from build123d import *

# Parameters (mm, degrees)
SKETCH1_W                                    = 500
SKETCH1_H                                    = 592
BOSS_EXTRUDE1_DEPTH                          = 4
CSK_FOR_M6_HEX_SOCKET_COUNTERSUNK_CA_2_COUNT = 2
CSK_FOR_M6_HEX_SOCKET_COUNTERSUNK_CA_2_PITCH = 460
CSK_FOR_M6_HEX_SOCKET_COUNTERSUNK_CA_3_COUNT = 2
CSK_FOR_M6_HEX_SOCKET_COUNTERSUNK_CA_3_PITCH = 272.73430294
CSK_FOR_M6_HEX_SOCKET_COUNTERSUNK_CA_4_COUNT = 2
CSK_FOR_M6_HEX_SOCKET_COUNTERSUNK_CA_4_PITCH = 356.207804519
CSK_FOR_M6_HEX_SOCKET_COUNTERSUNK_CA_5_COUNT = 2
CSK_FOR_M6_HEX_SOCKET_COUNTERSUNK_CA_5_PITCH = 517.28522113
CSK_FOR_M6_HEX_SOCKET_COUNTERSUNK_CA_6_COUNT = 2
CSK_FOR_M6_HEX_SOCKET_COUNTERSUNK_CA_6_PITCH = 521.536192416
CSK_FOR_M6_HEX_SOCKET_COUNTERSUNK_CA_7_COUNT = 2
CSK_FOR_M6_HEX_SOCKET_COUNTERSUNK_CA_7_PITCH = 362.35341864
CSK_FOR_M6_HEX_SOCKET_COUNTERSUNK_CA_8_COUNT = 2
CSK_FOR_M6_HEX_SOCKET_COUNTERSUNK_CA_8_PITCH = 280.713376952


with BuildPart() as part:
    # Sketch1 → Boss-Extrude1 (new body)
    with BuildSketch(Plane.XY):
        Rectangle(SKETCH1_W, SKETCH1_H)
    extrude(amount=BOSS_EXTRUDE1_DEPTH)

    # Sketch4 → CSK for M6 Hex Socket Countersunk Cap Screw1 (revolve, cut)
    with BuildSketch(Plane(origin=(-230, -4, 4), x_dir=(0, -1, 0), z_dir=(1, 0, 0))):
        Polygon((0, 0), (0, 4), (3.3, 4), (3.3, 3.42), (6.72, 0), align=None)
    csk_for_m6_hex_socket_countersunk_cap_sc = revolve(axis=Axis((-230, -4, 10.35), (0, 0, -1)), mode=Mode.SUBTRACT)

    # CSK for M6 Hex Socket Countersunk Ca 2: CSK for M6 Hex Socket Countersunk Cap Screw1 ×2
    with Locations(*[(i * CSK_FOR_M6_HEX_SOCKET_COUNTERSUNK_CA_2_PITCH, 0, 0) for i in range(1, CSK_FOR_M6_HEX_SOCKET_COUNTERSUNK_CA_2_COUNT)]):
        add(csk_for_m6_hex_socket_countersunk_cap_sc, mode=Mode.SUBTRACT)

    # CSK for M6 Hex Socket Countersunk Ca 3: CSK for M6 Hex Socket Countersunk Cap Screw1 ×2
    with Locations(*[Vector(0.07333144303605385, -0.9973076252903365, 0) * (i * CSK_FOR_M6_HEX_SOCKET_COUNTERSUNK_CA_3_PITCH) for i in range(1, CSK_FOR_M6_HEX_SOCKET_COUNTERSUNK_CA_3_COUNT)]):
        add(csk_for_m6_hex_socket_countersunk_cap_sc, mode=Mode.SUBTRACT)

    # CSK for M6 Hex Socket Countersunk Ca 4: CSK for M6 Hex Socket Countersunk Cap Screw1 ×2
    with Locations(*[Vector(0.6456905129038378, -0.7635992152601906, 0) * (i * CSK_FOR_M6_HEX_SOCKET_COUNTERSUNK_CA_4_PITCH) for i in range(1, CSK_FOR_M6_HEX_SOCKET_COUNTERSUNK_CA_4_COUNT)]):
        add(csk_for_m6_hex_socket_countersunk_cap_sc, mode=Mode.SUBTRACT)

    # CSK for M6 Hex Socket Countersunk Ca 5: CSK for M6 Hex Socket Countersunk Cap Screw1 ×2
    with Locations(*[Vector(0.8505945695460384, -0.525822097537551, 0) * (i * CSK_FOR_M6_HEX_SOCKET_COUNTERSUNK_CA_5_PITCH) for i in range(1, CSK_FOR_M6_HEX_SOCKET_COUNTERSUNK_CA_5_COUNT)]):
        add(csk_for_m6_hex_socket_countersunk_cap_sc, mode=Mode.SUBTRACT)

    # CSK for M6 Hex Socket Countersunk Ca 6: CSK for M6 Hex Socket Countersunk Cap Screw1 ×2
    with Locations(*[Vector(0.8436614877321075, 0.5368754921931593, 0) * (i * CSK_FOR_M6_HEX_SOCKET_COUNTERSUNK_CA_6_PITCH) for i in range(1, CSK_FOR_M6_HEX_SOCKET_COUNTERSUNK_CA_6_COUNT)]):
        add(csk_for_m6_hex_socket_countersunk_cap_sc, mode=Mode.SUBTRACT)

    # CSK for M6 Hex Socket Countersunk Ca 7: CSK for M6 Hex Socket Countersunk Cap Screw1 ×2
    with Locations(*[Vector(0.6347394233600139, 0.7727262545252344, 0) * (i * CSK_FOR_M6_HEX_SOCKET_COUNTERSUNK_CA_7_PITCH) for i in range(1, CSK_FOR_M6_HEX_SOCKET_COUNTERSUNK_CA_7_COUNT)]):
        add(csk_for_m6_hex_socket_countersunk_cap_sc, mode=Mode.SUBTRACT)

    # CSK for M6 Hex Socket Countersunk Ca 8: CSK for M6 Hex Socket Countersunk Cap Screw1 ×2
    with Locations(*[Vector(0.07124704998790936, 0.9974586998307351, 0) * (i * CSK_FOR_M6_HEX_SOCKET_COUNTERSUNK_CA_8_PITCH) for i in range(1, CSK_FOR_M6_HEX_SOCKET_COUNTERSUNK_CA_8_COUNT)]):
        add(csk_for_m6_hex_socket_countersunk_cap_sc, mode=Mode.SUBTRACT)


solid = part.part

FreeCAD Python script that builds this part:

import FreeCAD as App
import Part
import Sketcher
from FreeCAD import Vector
Q = App.Units.Quantity

doc = App.newDocument("Part")
body = doc.addObject("PartDesign::Body", "Body")

sketch1 = doc.addObject("Sketcher::SketchObject", "Sketch")
body.addObject(sketch1)
sketch1.AttachmentSupport = (doc.XY_Plane, [""])
sketch1.MapMode = "FlatFace"
sketch1.addGeometry([
    Part.LineSegment(Vector(-250, 296, 0), Vector(-250, -296, 0)),
    Part.LineSegment(Vector(-250, -296, 0), Vector(250, -296, 0)),
    Part.LineSegment(Vector(250, -296, 0), Vector(250, 296, 0)),
    Part.LineSegment(Vector(250, 296, 0), Vector(-250, 296, 0)),
], False)
sketch1.addConstraint([
    Sketcher.Constraint("Coincident", 0, 2, 1, 1),
    Sketcher.Constraint("Coincident", 1, 2, 2, 1),
    Sketcher.Constraint("Coincident", 2, 2, 3, 1),
    Sketcher.Constraint("Coincident", 3, 2, 0, 1),
    Sketcher.Constraint("Vertical", 0),
    Sketcher.Constraint("Horizontal", 1),
    Sketcher.Constraint("Vertical", 2),
    Sketcher.Constraint("Horizontal", 3),
    Sketcher.Constraint("Symmetric", 0, 2, 2, 2, -1, 1),
    Sketcher.Constraint("DistanceX", 1, 1, 1, 2, 500.0),
    Sketcher.Constraint("DistanceY", 0, 2, 0, 1, 592.0),
])
pad1 = doc.addObject("PartDesign::Pad", "Pad")
body.addObject(pad1)
pad1.Profile = sketch1
pad1.Length = 4

sketch2 = doc.addObject("Sketcher::SketchObject", "Sketch001")
body.addObject(sketch2)
sketch2.AttachmentSupport = (doc.YZ_Plane, [""])
sketch2.MapMode = "FlatFace"
sketch2.AttachmentOffset = App.Placement(Vector(0, 0, -230), App.Rotation())
sketch2.addGeometry([
    Part.LineSegment(Vector(-4, 0, 0), Vector(-4, 4, 0)),
    Part.LineSegment(Vector(-4, 4, 0), Vector(-10.7, 4, 0)),
    Part.LineSegment(Vector(-10.7, 4, 0), Vector(-7.3, 0.6, 0)),
    Part.LineSegment(Vector(-7.3, 0.6, 0), Vector(-7.3, 0, 0)),
    Part.LineSegment(Vector(-7.3, 0, 0), Vector(-4, 0, 0)),
], False)
sketch2.addGeometry(Part.LineSegment(Vector(-4, 4, 0), Vector(-4, 0, 0)), True)
sketch2.addConstraint([
    Sketcher.Constraint("Coincident", 0, 2, 1, 1),
    Sketcher.Constraint("Coincident", 1, 2, 2, 1),
    Sketcher.Constraint("Coincident", 2, 2, 3, 1),
    Sketcher.Constraint("Coincident", 3, 2, 4, 1),
    Sketcher.Constraint("Coincident", 4, 2, 0, 1),
    Sketcher.Constraint("Vertical", 0),
    Sketcher.Constraint("Horizontal", 1),
    Sketcher.Constraint("Vertical", 3),
    Sketcher.Constraint("Horizontal", 4),
    Sketcher.Constraint("Vertical", 5),
    Sketcher.Constraint("Coincident", 5, 1, 0, 2),
    Sketcher.Constraint("PointOnObject", 3, 2, -1),
    Sketcher.Constraint("PointOnObject", 5, 2, -1),
    Sketcher.Constraint("DistanceY", 0, 1, 0, 2, 4.0),
    Sketcher.Constraint("Angle", 2, Q("-45 deg")),
    Sketcher.Constraint("DistanceX", 4, 1, 4, 2, 3.3),
    Sketcher.Constraint("DistanceX", 0, 2, -1, 1, 4.0),
    Sketcher.Constraint("DistanceX", 1, 2, 1, 1, 6.72),
])
groove = doc.addObject("PartDesign::Groove", "Groove")
body.addObject(groove)
groove.Profile = sketch2
groove.ReferenceAxis = (sketch2, ["Axis0"])
groove.Angle = 360
doc.recompute()

linearpattern = doc.addObject("PartDesign::LinearPattern", "LinearPattern")
body.addObject(linearpattern)
linearpattern.Originals = [groove]
linearpattern.Direction = (doc.X_Axis, [""])
linearpattern.Mode = "offset"
linearpattern.Offset = 460
linearpattern.Occurrences = 2
body.Tip = linearpattern
doc.recompute()

datumline = doc.addObject("PartDesign::Line", "DatumLine")
body.addObject(datumline)
datumline.Placement = App.Placement(Vector(0, 0, 0), App.Rotation(Vector(0, 0, 1), Vector(0.073331443, -0.997307625, 0)))
linearpattern2 = doc.addObject("PartDesign::LinearPattern", "LinearPattern001")
body.addObject(linearpattern2)
linearpattern2.Originals = [groove]
linearpattern2.Direction = (datumline, [""])
linearpattern2.Mode = "offset"
linearpattern2.Offset = 272.734303
linearpattern2.Occurrences = 2
body.Tip = linearpattern2
doc.recompute()

datumline2 = doc.addObject("PartDesign::Line", "DatumLine001")
body.addObject(datumline2)
datumline2.Placement = App.Placement(Vector(0, 0, 0), App.Rotation(Vector(0, 0, 1), Vector(0.645690513, -0.763599215, 0)))
linearpattern3 = doc.addObject("PartDesign::LinearPattern", "LinearPattern002")
body.addObject(linearpattern3)
linearpattern3.Originals = [groove]
linearpattern3.Direction = (datumline2, [""])
linearpattern3.Mode = "offset"
linearpattern3.Offset = 356.207805
linearpattern3.Occurrences = 2
body.Tip = linearpattern3
doc.recompute()

datumline3 = doc.addObject("PartDesign::Line", "DatumLine002")
body.addObject(datumline3)
datumline3.Placement = App.Placement(Vector(0, 0, 0), App.Rotation(Vector(0, 0, 1), Vector(0.85059457, -0.525822098, 0)))
linearpattern4 = doc.addObject("PartDesign::LinearPattern", "LinearPattern003")
body.addObject(linearpattern4)
linearpattern4.Originals = [groove]
linearpattern4.Direction = (datumline3, [""])
linearpattern4.Mode = "offset"
linearpattern4.Offset = 517.285221
linearpattern4.Occurrences = 2
body.Tip = linearpattern4
doc.recompute()

datumline4 = doc.addObject("PartDesign::Line", "DatumLine003")
body.addObject(datumline4)
datumline4.Placement = App.Placement(Vector(0, 0, 0), App.Rotation(Vector(0, 0, 1), Vector(0.843661488, 0.536875492, 0)))
linearpattern5 = doc.addObject("PartDesign::LinearPattern", "LinearPattern004")
body.addObject(linearpattern5)
linearpattern5.Originals = [groove]
linearpattern5.Direction = (datumline4, [""])
linearpattern5.Mode = "offset"
linearpattern5.Offset = 521.536192
linearpattern5.Occurrences = 2
body.Tip = linearpattern5
doc.recompute()

datumline5 = doc.addObject("PartDesign::Line", "DatumLine004")
body.addObject(datumline5)
datumline5.Placement = App.Placement(Vector(0, 0, 0), App.Rotation(Vector(0, 0, 1), Vector(0.634739423, 0.772726255, 0)))
linearpattern6 = doc.addObject("PartDesign::LinearPattern", "LinearPattern005")
body.addObject(linearpattern6)
linearpattern6.Originals = [groove]
linearpattern6.Direction = (datumline5, [""])
linearpattern6.Mode = "offset"
linearpattern6.Offset = 362.353419
linearpattern6.Occurrences = 2
body.Tip = linearpattern6
doc.recompute()

datumline6 = doc.addObject("PartDesign::Line", "DatumLine005")
body.addObject(datumline6)
datumline6.Placement = App.Placement(Vector(0, 0, 0), App.Rotation(Vector(0, 0, 1), Vector(0.07124705, 0.9974587, 0)))
linearpattern7 = doc.addObject("PartDesign::LinearPattern", "LinearPattern006")
body.addObject(linearpattern7)
linearpattern7.Originals = [groove]
linearpattern7.Direction = (datumline6, [""])
linearpattern7.Mode = "offset"
linearpattern7.Offset = 280.713377
linearpattern7.Occurrences = 2
body.Tip = linearpattern7

doc.recompute()
